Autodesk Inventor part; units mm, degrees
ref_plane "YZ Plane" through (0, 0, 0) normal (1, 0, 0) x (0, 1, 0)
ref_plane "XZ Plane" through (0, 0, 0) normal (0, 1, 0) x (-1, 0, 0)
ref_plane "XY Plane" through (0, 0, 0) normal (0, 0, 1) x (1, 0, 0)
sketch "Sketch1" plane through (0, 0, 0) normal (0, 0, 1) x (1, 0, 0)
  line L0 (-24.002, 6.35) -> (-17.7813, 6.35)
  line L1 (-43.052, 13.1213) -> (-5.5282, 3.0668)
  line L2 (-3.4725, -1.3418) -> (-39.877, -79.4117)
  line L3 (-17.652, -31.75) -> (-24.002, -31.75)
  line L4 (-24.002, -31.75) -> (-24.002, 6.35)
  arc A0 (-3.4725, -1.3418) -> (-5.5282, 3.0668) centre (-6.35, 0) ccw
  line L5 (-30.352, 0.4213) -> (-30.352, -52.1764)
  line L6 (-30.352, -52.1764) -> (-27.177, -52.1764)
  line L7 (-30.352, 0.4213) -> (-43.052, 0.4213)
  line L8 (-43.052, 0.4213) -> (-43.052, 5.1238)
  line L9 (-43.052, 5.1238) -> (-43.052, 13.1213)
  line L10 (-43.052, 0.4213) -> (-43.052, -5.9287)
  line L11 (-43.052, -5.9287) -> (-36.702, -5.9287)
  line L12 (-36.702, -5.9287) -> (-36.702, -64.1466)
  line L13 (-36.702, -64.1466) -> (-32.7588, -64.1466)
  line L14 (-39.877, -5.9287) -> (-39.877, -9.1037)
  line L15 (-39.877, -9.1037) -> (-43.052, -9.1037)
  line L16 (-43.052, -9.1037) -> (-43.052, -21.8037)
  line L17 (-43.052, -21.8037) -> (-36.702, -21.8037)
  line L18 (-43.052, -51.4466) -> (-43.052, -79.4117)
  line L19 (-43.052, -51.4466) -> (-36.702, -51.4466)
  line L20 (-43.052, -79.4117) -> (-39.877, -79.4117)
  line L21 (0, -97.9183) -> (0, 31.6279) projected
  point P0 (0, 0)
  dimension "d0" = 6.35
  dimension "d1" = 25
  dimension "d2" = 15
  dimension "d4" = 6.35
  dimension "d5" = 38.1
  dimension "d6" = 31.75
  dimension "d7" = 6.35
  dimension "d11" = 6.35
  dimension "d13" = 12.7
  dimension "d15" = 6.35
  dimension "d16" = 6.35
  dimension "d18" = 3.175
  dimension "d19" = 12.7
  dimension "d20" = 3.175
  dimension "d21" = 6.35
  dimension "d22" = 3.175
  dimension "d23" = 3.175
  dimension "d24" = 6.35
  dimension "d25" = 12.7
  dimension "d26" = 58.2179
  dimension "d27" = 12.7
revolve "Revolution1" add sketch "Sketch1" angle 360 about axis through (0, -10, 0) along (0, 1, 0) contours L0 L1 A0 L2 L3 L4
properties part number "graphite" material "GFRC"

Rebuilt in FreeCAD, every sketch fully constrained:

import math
import FreeCAD as App
import Part
import Sketcher
from FreeCAD import Vector
Q = App.Units.Quantity

doc = App.newDocument("Part")
body = doc.addObject("PartDesign::Body", "Body")

# Sketch on XY plane
sketch1 = body.newObject("Sketcher::SketchObject", "Sketch")
sketch1.AttachmentSupport = (doc.getObject("XY_Plane"), [""])
sketch1.MapMode = "FlatFace"
sketch1.addGeometry([
    Part.LineSegment(Vector(-17.7813, 6.35, 0), Vector(-24.002, 6.35, 0)),  # 0
    Part.LineSegment(Vector(-24.002, 6.35, 0), Vector(-24.002, -31.75, 0)),  # 1
    Part.LineSegment(Vector(-24.002, -31.75, 0), Vector(-17.652, -31.75, 0)),  # 2
    Part.LineSegment(Vector(-17.652033, -31.749984, 0), Vector(-3.4725, -1.3418, 0)),  # 3
    Part.ArcOfCircle(Part.Circle(Vector(-6.35, 0, 0), Vector(0, 0, 1), 3.17497), math.radians(-24.999995), math.radians(74.999069)),  # 4
    Part.LineSegment(Vector(-5.5282, 3.0668, 0), Vector(-17.781296, 6.350016, 0)),  # 5
], False)
sketch1.addConstraint([
    Sketcher.Constraint("Coincident", 0, 2, 1, 1),
    Sketcher.Constraint("Coincident", 1, 2, 2, 1),
    Sketcher.Constraint("Coincident", 2, 2, 3, 1),
    Sketcher.Constraint("Tangent", 3, 2, 4, 1),
    Sketcher.Constraint("Tangent", 4, 2, 5, 1),
    Sketcher.Constraint("Coincident", 5, 2, 0, 1),
    Sketcher.Constraint("Horizontal", 0),
    Sketcher.Constraint("Vertical", 1),
    Sketcher.Constraint("Horizontal", 2),
    Sketcher.Constraint("PointOnObject", 4, 3, -1),
    Sketcher.Constraint("DistanceY", 1, 2, 1, 1, Q("1.5 in")),
    Sketcher.Constraint("Radius", 4, Q("0.125 in")),
    Sketcher.Constraint("DistanceX", 2, 1, 2, 2, Q("0.25 in")),
    Sketcher.Constraint("DistanceX", 4, 3, -1, 1, Q("0.25 in")),
    Sketcher.Constraint("DistanceY", -1, 1, 0, 2, Q("0.25 in")),
    Sketcher.Constraint("Angle", 3, Q("65 deg")),
    Sketcher.Constraint("Angle", 5, Q("165 deg")),
])
revolution = body.newObject("PartDesign::Revolution", "Revolution")
revolution.Profile = sketch1
revolution.ReferenceAxis = (sketch1, ["V_Axis"])
revolution.Angle = 360

doc.recompute()
